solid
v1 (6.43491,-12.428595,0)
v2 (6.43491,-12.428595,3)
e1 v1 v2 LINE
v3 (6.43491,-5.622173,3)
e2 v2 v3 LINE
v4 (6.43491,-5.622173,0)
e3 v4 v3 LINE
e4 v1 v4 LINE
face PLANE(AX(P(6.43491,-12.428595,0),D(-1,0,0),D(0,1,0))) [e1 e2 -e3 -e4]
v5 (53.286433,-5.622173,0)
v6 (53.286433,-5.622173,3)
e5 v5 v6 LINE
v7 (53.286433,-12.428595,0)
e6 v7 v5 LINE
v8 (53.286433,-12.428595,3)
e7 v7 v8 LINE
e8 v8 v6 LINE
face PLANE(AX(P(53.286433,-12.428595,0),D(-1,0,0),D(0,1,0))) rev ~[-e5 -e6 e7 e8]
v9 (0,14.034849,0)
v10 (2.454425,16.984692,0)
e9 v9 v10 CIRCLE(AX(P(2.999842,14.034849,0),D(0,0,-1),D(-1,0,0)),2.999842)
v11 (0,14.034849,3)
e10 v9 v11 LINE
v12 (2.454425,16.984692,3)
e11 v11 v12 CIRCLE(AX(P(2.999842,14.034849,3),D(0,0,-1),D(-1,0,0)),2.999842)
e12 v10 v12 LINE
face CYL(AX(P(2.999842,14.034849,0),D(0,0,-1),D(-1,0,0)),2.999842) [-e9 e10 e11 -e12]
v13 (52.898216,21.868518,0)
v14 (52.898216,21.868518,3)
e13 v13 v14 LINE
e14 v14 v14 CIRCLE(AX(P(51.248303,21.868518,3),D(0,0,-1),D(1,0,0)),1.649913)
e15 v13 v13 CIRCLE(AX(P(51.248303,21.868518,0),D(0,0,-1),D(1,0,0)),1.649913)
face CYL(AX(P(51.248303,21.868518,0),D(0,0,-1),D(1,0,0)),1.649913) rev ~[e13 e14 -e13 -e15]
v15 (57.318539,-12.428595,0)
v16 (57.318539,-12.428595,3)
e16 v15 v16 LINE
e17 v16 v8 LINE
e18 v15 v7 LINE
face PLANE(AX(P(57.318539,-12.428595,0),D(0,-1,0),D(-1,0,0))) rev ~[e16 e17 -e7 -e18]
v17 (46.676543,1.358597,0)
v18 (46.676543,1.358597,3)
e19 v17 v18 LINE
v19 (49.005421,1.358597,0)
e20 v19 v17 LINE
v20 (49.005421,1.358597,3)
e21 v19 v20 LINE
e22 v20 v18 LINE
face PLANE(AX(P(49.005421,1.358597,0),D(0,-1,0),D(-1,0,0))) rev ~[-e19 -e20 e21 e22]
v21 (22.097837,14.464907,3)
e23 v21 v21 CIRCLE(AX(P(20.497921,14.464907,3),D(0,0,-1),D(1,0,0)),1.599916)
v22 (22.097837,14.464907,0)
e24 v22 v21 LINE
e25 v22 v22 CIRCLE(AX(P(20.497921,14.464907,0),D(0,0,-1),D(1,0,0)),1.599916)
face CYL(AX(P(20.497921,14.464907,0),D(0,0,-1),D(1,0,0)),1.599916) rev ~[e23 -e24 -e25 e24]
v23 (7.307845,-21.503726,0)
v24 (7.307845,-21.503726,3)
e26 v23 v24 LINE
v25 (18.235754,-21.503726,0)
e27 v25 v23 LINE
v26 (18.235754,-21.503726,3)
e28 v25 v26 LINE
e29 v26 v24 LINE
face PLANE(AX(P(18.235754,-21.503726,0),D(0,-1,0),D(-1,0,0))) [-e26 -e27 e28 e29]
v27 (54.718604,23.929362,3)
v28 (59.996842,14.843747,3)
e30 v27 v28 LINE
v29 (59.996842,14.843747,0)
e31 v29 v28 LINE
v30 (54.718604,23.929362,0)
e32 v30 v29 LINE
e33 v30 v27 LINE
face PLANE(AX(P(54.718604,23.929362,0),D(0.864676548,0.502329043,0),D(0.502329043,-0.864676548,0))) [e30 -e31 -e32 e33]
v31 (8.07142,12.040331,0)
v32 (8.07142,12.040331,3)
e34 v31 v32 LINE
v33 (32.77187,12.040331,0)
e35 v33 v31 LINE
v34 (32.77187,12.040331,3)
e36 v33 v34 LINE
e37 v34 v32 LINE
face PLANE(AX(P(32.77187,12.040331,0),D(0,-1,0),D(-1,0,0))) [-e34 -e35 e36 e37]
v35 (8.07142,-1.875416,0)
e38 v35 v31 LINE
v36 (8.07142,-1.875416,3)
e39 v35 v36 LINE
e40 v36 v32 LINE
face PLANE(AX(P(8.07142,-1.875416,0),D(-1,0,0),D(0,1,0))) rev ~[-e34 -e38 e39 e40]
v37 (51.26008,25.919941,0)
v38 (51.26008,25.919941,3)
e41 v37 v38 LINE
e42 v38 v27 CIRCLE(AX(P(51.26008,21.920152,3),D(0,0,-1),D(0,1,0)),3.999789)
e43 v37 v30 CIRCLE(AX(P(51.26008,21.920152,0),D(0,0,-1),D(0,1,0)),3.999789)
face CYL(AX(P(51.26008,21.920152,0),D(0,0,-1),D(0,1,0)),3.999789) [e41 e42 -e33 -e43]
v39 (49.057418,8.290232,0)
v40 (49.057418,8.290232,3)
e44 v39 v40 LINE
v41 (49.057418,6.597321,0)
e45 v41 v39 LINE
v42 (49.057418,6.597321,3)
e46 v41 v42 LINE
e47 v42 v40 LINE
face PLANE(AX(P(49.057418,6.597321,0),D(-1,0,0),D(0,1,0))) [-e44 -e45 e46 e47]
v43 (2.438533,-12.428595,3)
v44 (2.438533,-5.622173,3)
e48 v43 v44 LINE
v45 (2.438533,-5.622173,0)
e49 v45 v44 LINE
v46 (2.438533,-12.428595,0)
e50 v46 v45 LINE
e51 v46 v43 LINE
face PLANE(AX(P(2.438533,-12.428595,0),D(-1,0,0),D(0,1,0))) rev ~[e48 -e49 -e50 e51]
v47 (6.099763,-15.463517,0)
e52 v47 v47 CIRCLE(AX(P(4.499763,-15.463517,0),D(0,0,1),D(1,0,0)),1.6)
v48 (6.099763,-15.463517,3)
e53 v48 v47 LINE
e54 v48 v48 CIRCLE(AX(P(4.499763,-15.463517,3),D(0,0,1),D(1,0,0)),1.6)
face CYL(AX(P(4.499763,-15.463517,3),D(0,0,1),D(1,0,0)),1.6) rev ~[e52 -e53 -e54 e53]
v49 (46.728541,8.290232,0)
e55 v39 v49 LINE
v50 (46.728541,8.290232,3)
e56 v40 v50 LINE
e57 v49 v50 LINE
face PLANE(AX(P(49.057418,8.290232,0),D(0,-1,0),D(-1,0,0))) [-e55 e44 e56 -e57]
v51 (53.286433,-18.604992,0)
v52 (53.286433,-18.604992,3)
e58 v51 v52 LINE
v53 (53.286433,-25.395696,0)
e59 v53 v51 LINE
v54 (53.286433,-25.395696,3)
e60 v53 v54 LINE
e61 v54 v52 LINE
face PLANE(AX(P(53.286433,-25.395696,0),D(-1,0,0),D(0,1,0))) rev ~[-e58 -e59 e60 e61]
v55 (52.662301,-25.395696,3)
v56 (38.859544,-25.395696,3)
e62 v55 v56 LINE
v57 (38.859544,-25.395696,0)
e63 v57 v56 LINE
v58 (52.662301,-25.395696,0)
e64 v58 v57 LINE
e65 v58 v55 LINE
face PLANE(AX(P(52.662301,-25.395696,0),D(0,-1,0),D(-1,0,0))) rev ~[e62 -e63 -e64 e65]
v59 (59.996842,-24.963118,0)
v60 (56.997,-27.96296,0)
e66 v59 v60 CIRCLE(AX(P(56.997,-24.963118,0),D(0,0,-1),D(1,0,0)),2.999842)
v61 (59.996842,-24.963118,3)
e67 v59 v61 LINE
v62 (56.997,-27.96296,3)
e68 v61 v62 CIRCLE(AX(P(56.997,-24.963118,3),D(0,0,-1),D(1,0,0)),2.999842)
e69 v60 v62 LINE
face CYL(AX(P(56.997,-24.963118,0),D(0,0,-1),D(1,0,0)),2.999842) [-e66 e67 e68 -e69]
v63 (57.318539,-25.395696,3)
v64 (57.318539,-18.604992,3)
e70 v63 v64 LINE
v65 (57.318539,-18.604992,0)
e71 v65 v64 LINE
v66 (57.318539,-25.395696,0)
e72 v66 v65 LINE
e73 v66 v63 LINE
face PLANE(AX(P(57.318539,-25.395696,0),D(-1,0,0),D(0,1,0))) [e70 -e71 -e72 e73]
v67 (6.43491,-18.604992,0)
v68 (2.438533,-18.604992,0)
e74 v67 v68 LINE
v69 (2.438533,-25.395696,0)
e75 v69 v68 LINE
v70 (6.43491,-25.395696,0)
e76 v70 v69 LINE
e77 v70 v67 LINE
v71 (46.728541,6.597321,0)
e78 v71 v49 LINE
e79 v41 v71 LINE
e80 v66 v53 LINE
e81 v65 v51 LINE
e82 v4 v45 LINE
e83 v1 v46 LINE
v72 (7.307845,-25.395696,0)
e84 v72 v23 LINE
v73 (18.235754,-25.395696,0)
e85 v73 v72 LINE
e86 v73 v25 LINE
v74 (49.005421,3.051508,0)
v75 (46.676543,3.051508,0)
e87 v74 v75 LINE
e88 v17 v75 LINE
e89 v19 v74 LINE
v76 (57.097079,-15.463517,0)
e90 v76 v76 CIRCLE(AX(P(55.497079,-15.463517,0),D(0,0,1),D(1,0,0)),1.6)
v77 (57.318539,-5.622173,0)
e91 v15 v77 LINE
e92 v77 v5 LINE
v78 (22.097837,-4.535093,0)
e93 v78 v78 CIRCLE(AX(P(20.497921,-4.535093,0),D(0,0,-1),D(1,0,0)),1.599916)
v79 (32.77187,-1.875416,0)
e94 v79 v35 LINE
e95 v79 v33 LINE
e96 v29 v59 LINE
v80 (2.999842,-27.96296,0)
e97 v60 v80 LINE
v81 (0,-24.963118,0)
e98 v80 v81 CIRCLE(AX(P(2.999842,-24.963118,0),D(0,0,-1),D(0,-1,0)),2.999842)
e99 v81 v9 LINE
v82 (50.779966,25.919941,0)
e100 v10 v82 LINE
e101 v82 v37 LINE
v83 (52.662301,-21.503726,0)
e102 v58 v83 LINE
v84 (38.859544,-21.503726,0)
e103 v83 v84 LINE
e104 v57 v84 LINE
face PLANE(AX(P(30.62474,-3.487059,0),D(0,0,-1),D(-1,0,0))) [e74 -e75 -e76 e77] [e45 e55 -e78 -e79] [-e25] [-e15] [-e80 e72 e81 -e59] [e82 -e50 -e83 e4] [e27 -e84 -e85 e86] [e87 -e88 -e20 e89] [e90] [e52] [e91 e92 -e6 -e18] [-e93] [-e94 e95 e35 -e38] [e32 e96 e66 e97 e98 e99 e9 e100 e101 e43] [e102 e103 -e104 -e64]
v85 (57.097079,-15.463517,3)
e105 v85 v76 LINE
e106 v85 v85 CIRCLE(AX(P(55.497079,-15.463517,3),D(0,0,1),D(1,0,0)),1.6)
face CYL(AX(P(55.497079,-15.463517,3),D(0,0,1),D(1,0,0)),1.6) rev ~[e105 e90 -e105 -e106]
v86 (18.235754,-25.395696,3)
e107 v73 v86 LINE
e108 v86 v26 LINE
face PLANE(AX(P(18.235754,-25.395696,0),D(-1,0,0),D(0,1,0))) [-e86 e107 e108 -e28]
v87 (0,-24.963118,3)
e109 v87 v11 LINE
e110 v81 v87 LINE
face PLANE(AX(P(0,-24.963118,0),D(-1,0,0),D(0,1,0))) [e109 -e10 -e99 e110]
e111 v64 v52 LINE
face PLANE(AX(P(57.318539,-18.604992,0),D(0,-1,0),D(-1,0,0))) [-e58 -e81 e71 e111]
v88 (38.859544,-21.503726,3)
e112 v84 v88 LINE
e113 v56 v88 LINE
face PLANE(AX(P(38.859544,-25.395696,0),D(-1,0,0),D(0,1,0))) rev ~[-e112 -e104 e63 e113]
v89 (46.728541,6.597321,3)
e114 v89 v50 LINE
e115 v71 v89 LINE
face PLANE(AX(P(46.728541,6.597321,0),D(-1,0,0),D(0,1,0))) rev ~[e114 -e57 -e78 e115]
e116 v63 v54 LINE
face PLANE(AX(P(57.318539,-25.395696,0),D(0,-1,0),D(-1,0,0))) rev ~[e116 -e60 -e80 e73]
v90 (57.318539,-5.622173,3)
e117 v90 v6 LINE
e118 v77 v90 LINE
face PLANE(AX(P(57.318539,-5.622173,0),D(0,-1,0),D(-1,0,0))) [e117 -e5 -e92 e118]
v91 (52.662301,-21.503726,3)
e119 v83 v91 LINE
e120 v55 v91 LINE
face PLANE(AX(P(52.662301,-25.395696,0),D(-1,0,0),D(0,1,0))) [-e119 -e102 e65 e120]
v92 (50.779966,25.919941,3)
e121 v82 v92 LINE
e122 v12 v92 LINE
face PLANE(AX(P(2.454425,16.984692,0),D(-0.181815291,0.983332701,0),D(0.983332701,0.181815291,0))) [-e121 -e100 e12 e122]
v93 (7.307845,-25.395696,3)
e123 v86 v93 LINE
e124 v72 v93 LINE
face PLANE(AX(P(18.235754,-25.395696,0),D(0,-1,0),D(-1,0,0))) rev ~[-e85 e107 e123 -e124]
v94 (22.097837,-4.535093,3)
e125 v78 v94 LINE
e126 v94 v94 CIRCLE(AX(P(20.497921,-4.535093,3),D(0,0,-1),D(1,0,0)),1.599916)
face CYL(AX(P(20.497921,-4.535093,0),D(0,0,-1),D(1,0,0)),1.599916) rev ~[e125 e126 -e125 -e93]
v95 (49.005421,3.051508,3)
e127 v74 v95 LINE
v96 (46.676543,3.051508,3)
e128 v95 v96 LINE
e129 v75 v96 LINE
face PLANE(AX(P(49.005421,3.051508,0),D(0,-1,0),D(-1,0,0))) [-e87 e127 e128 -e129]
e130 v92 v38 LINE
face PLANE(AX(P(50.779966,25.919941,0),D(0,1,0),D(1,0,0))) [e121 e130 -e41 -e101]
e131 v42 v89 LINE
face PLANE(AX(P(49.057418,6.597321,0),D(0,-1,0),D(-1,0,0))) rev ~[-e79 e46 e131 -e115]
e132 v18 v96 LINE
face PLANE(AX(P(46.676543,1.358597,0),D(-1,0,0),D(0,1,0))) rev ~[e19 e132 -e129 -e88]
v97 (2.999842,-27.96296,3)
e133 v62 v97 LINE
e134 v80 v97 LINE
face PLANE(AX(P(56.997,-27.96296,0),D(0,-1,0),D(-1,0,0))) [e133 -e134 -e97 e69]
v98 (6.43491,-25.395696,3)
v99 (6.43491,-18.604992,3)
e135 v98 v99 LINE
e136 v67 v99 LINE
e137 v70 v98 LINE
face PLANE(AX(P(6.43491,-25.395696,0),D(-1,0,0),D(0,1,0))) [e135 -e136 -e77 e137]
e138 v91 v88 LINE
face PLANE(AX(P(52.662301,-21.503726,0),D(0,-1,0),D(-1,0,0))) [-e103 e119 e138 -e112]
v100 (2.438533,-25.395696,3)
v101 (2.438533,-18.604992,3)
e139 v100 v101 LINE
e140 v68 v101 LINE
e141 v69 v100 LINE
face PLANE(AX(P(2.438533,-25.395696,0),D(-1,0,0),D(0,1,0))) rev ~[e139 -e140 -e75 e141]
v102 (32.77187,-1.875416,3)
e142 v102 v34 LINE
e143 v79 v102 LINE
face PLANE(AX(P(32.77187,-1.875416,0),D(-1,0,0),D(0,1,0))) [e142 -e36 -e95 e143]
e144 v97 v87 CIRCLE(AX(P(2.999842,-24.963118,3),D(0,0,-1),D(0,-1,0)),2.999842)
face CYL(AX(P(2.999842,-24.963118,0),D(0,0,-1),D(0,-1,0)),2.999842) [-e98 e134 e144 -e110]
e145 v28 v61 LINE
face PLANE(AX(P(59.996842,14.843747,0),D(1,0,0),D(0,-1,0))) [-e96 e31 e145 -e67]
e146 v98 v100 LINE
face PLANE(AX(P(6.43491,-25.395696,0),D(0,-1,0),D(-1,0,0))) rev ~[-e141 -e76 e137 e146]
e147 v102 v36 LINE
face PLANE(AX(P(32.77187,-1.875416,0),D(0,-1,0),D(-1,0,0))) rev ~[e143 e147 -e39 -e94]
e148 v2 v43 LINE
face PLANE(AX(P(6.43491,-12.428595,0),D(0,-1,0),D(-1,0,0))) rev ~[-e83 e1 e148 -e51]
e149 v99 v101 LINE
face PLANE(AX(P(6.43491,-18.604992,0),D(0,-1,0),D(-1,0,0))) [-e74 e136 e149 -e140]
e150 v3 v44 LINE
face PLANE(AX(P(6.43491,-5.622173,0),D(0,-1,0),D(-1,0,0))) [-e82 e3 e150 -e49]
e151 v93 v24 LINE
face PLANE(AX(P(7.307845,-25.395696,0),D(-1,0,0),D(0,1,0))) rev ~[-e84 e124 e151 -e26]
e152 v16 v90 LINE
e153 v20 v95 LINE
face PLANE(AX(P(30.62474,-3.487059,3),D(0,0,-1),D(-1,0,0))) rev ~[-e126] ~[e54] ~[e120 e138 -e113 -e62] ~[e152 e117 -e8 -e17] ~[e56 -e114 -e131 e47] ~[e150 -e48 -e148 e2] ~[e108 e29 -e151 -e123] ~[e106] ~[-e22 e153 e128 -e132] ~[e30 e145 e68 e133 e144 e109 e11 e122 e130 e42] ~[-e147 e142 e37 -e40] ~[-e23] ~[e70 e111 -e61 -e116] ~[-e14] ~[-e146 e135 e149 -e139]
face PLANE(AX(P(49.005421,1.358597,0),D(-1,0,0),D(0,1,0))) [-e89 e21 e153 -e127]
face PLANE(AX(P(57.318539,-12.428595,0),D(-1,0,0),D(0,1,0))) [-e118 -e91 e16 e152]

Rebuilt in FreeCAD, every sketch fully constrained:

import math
import FreeCAD as App
import Part
import Sketcher
from FreeCAD import Vector


def add_polygon(sketch, points):
    """Adds a closed chain of lines whose ends are joined by coincident constraints."""
    first, n = sketch.GeometryCount, len(points)
    for a, b in zip(points, points[1:] + points[:1]):
        sketch.addGeometry(Part.LineSegment(App.Vector(*a, 0), App.Vector(*b, 0)), False)
    for i in range(n):
        sketch.addConstraint(Sketcher.Constraint("Coincident", first + i, 2, first + (i + 1) % n, 1))

doc = App.newDocument("Part")
body = doc.addObject("PartDesign::Body", "Body")

sketch1 = doc.addObject("Sketcher::SketchObject", "Sketch")
body.addObject(sketch1)
sketch1.AttachmentSupport = (doc.XY_Plane, [""])
sketch1.MapMode = "FlatFace"
sketch1.addGeometry(Part.LineSegment(Vector(57, -27.96, 0), Vector(3, -27.96, 0)), False)
sketch1.addGeometry(Part.ArcOfCircle(Part.Circle(Vector(3, -24.96, 0), Vector(0, 0, 1), 3), math.radians(-180), math.radians(-90)), False)
sketch1.addGeometry(Part.LineSegment(Vector(0, -24.96, 0), Vector(0, 14.03, 0)), False)
sketch1.addGeometry(Part.ArcOfCircle(Part.Circle(Vector(3, 14.03, 0), Vector(0, 0, 1), 3), math.radians(100), math.radians(180)), False)
sketch1.addGeometry(Part.LineSegment(Vector(2.45, 16.98, 0), Vector(50.78, 25.92, 0)), False)
sketch1.addGeometry(Part.LineSegment(Vector(50.78, 25.92, 0), Vector(51.26, 25.92, 0)), False)
sketch1.addGeometry(Part.ArcOfCircle(Part.Circle(Vector(51.26, 21.92, 0), Vector(0, 0, 1), 4), math.radians(30), math.radians(90)), False)
sketch1.addGeometry(Part.LineSegment(Vector(54.72, 23.93, 0), Vector(60, 14.84, 0)), False)
sketch1.addGeometry(Part.LineSegment(Vector(60, 14.84, 0), Vector(60, -24.96, 0)), False)
sketch1.addGeometry(Part.ArcOfCircle(Part.Circle(Vector(57, -24.96, 0), Vector(0, 0, 1), 3), math.radians(-90), math.radians(0)), False)
add_polygon(sketch1, [(53.29, -25.4), (57.32, -25.4), (57.32, -18.6), (53.29, -18.6)])
add_polygon(sketch1, [(38.86, -25.4), (52.66, -25.4), (52.66, -21.5), (38.86, -21.5)])
sketch1.addGeometry(Part.Circle(Vector(55.5, -15.46, 0), Vector(0, 0, 1), 1.36), False)
add_polygon(sketch1, [(53.29, -12.43), (57.32, -12.43), (57.32, -5.62), (53.29, -5.62)])
add_polygon(sketch1, [(7.31, -25.4), (18.24, -25.4), (18.24, -21.5), (7.31, -21.5)])
add_polygon(sketch1, [(2.44, -25.4), (6.43, -25.4), (6.43, -18.6), (2.44, -18.6)])
sketch1.addGeometry(Part.Circle(Vector(4.5, -15.46, 0), Vector(0, 0, 1), 1.36), False)
sketch1.addGeometry(Part.Circle(Vector(20.5, -4.54, 0), Vector(0, 0, 1), 1.6), False)
add_polygon(sketch1, [(2.44, -12.43), (6.43, -12.43), (6.43, -5.62), (2.44, -5.62)])
add_polygon(sketch1, [(46.68, 1.36), (49.01, 1.36), (49.01, 3.05), (46.68, 3.05)])
add_polygon(sketch1, [(46.73, 6.6), (49.06, 6.6), (49.06, 8.29), (46.73, 8.29)])
sketch1.addGeometry(Part.Circle(Vector(51.25, 21.87, 0), Vector(0, 0, 1), 1.65), False)
add_polygon(sketch1, [(8.07, -1.88), (32.77, -1.88), (32.77, 12.04), (8.07, 12.04)])
sketch1.addGeometry(Part.Circle(Vector(20.5, 14.46, 0), Vector(0, 0, 1), 1.6), False)
sketch1.addConstraint([
    Sketcher.Constraint("Tangent", 0, 2, 1, 2),
    Sketcher.Constraint("Tangent", 1, 1, 2, 1),
    Sketcher.Constraint("Tangent", 2, 2, 3, 2),
    Sketcher.Constraint("Tangent", 3, 1, 4, 1),
    Sketcher.Constraint("Coincident", 4, 2, 5, 1),
    Sketcher.Constraint("Tangent", 5, 2, 6, 2),
    Sketcher.Constraint("Tangent", 6, 1, 7, 1),
    Sketcher.Constraint("Coincident", 7, 2, 8, 1),
    Sketcher.Constraint("Tangent", 8, 2, 9, 2),
    Sketcher.Constraint("Tangent", 9, 1, 0, 1),
    Sketcher.Constraint("Horizontal", 0),
    Sketcher.Constraint("Vertical", 2),
    Sketcher.Constraint("Horizontal", 5),
    Sketcher.Constraint("Vertical", 8),
    Sketcher.Constraint("Horizontal", 10),
    Sketcher.Constraint("Vertical", 11),
    Sketcher.Constraint("Horizontal", 12),
    Sketcher.Constraint("Vertical", 13),
    Sketcher.Constraint("Horizontal", 14),
    Sketcher.Constraint("Vertical", 15),
    Sketcher.Constraint("Horizontal", 16),
    Sketcher.Constraint("Vertical", 17),
    Sketcher.Constraint("Horizontal", 19),
    Sketcher.Constraint("Vertical", 20),
    Sketcher.Constraint("Horizontal", 21),
    Sketcher.Constraint("Vertical", 22),
    Sketcher.Constraint("Horizontal", 23),
    Sketcher.Constraint("Vertical", 24),
    Sketcher.Constraint("Horizontal", 25),
    Sketcher.Constraint("Vertical", 26),
    Sketcher.Constraint("Horizontal", 27),
    Sketcher.Constraint("Vertical", 28),
    Sketcher.Constraint("Horizontal", 29),
    Sketcher.Constraint("Vertical", 30),
    Sketcher.Constraint("Horizontal", 33),
    Sketcher.Constraint("Vertical", 34),
    Sketcher.Constraint("Horizontal", 35),
    Sketcher.Constraint("Vertical", 36),
    Sketcher.Constraint("Horizontal", 37),
    Sketcher.Constraint("Vertical", 38),
    Sketcher.Constraint("Horizontal", 39),
    Sketcher.Constraint("Vertical", 40),
    Sketcher.Constraint("Horizontal", 41),
    Sketcher.Constraint("Vertical", 42),
    Sketcher.Constraint("Horizontal", 43),
    Sketcher.Constraint("Vertical", 44),
    Sketcher.Constraint("Horizontal", 46),
    Sketcher.Constraint("Vertical", 47),
    Sketcher.Constraint("Horizontal", 48),
    Sketcher.Constraint("Vertical", 49),
    Sketcher.Constraint("Equal", 1, 3),
    Sketcher.Constraint("Equal", 3, 9),
    Sketcher.Constraint("Equal", 18, 31),
    Sketcher.Constraint("Equal", 32, 50),
    Sketcher.Constraint("PointOnObject", 1, 1, -2),
    Sketcher.Constraint("Horizontal", 18, 3, 31, 3),
    Sketcher.Constraint("Horizontal", 13, 2, 14, 2),
    Sketcher.Constraint("Horizontal", 17, 2, 23, 2),
    Sketcher.Constraint("Horizontal", 16, 2, 24, 2),
    Sketcher.Constraint("Horizontal", 26, 2, 27, 2),
    Sketcher.Constraint("Horizontal", 12, 2, 28, 2),
    Sketcher.Constraint("Horizontal", 22, 2, 33, 2),
    Sketcher.Constraint("Horizontal", 21, 2, 34, 2),
    Sketcher.Constraint("Vertical", 32, 3, 50, 3),
    Sketcher.Constraint("Vertical", 11, 2, 19, 2),
    Sketcher.Constraint("Vertical", 13, 2, 21, 2),
    Sketcher.Constraint("Vertical", 28, 2, 33, 2),
    Sketcher.Constraint("Vertical", 30, 2, 35, 2),
    Sketcher.Constraint("Equal", 39, 41),
    Sketcher.Constraint("Equal", 40, 42),
    Sketcher.Constraint("DistanceY", 32, 3, 50, 3, 19.0),
    Sketcher.Constraint("Diameter", 32, 3.199832),
    Sketcher.Constraint("Radius", 6, 3.999789),
    Sketcher.Constraint("Diameter", 18, 2.717857),
    Sketcher.Constraint("Diameter", 45, 3.299826),
    Sketcher.Constraint("DistanceX", -1, 1, 9, 3, 56.997),
    Sketcher.Constraint("Radius", 1, 2.999842),
    Sketcher.Constraint("DistanceX", 6, 3, 18, 3, 4.236999),
    Sketcher.Constraint("DistanceX", 23, 1, 23, 2, 10.927909),
    Sketcher.Constraint("DistanceX", 46, 1, 46, 2, 24.70045),
    Sketcher.Constraint("DistanceY", 15, 1, 15, 2, 3.89197),
    Sketcher.Constraint("DistanceY", 20, 1, 20, 2, 6.806422),
    Sketcher.Constraint("DistanceY", 38, 1, 38, 2, 1.692911),
    Sketcher.Constraint("DistanceX", -1, 1, 14, 2, 52.662301),
    Sketcher.Constraint("DistanceY", 9, 3, 18, 3, 9.4996),
    Sketcher.Constraint("DistanceX", 45, 3, 6, 1, 3.470302),
    Sketcher.Constraint("DistanceY", 27, 2, 33, 2, 12.967102),
    Sketcher.Constraint("DistanceY", 43, 2, 47, 2, 3.750098),
    Sketcher.Constraint("DistanceX", 48, 2, 50, 3, 12.426501),
    Sketcher.Constraint("Distance", 4, 49.14465),
    Sketcher.Constraint("Distance", 7, 10.507531),
    Sketcher.Constraint("DistanceX", 5, 1, 5, 2, 0.480114),
    Sketcher.Constraint("DistanceX", 10, 1, 10, 2, 4.032107),
    Sketcher.Constraint("DistanceX", 14, 1, 14, 2, 13.802757),
    Sketcher.Constraint("DistanceX", 27, 1, 27, 2, 3.996377),
    Sketcher.Constraint("DistanceX", 37, 1, 37, 2, 2.328877),
    Sketcher.Constraint("DistanceY", 2, 1, 2, 2, 38.997967),
    Sketcher.Constraint("DistanceY", 8, 2, 8, 1, 39.806864),
    Sketcher.Constraint("DistanceY", 11, 1, 11, 2, 6.790705),
    Sketcher.Constraint("DistanceY", 47, 1, 47, 2, 13.915746),
    Sketcher.Constraint("DistanceY", -1, 1, 3, 3, 14.034849),
    Sketcher.Constraint("DistanceX", -1, 1, 32, 3, 20.497921),
    Sketcher.Constraint("DistanceX", -1, 1, 10, 2, 57.318539),
    Sketcher.Constraint("DistanceY", 11, 2, -1, 1, 18.604992),
    Sketcher.Constraint("DistanceX", -1, 1, 27, 2, 6.43491),
    Sketcher.Constraint("DistanceX", -1, 1, 37, 2, 49.005421),
    Sketcher.Constraint("DistanceY", -1, 1, 38, 2, 3.051508),
    Sketcher.Constraint("DistanceX", -1, 1, 41, 2, 49.057418),
    Sketcher.Constraint("DistanceY", -1, 1, 41, 2, 6.597321),
    Sketcher.Constraint("DistanceX", 1, 3, 31, 3, 1.499921),
    Sketcher.Constraint("DistanceY", 32, 3, 45, 3, 26.40361),
    Sketcher.Constraint("DistanceY", 3, 3, 45, 3, 7.833668),
    Sketcher.Constraint("DistanceX", 31, 3, 23, 2, 13.735991),
])
pad1 = doc.addObject("PartDesign::Pad", "Pad")
body.addObject(pad1)
pad1.Profile = sketch1
pad1.Length = 3

sketch2 = doc.addObject("Sketcher::SketchObject", "Sketch001")
body.addObject(sketch2)
sketch2.AttachmentSupport = (doc.XY_Plane, [""])
sketch2.MapMode = "FlatFace"
sketch2.AttachmentOffset = App.Placement(Vector(0, 0, 3), App.Rotation())
sketch2.addGeometry([
    Part.Circle(Vector(55.5, -15.5, 0), Vector(0, 0, 1), 1.6),
    Part.Circle(Vector(4.5, -15.5, 0), Vector(0, 0, 1), 1.6),
], False)
sketch2.addConstraint([
    Sketcher.Constraint("Equal", 0, 1),
    Sketcher.Constraint("Horizontal", 0, 3, 1, 3),
    Sketcher.Constraint("Diameter", 0, 3.2),
    Sketcher.Constraint("DistanceX", -1, 1, 0, 3, 55.497079),
    Sketcher.Constraint("DistanceY", 0, 3, -1, 1, 15.463517),
    Sketcher.Constraint("DistanceX", -1, 1, 1, 3, 4.499763),
])
pocket1 = doc.addObject("PartDesign::Pocket", "Pocket")
body.addObject(pocket1)
pocket1.Profile = sketch2
pocket1.Type = "ThroughAll"

doc.recompute()
